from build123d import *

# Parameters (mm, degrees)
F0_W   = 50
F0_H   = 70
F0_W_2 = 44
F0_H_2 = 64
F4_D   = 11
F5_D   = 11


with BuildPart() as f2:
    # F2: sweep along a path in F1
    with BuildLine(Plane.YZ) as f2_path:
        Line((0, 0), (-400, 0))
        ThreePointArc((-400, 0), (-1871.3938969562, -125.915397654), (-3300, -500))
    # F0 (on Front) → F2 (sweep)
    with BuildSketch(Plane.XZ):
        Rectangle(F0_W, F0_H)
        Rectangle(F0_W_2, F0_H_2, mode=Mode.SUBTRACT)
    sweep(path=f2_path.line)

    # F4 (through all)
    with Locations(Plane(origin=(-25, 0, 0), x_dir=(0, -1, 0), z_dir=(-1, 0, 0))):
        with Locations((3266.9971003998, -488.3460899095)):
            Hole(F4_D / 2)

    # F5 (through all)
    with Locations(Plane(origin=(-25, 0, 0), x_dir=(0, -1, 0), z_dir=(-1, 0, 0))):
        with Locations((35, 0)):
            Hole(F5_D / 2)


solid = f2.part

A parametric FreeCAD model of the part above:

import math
import FreeCAD as App
import Part
import Sketcher
from FreeCAD import Vector
Q = App.Units.Quantity

doc = App.newDocument("Part")
body = doc.addObject("PartDesign::Body", "Body")

# Sketch on XZ plane
sketch1 = body.newObject("Sketcher::SketchObject", "Sketch")
sketch1.AttachmentSupport = (doc.getObject("XZ_Plane"), [""])
sketch1.MapMode = "FlatFace"
sketch1.addGeometry([
    Part.LineSegment(Vector(-25, 35, 0), Vector(-25, -35, 0)),  # 0
    Part.LineSegment(Vector(-25, -35, 0), Vector(25, -35, 0)),  # 1
    Part.LineSegment(Vector(25, -35, 0), Vector(25, 35, 0)),  # 2
    Part.LineSegment(Vector(25, 35, 0), Vector(-25, 35, 0)),  # 3
    Part.LineSegment(Vector(22, -32, 0), Vector(-22, -32, 0)),  # 4
    Part.LineSegment(Vector(-22, -32, 0), Vector(-22, 32, 0)),  # 5
    Part.LineSegment(Vector(-22, 32, 0), Vector(22, 32, 0)),  # 6
    Part.LineSegment(Vector(22, 32, 0), Vector(22, -32, 0)),  # 7
], False)
sketch1.addConstraint([
    Sketcher.Constraint("Coincident", 0, 2, 1, 1),
    Sketcher.Constraint("Coincident", 1, 2, 2, 1),
    Sketcher.Constraint("Coincident", 2, 2, 3, 1),
    Sketcher.Constraint("Coincident", 3, 2, 0, 1),
    Sketcher.Constraint("Coincident", 4, 2, 5, 1),
    Sketcher.Constraint("Coincident", 5, 2, 6, 1),
    Sketcher.Constraint("Coincident", 6, 2, 7, 1),
    Sketcher.Constraint("Coincident", 7, 2, 4, 1),
    Sketcher.Constraint("Vertical", 0),
    Sketcher.Constraint("Horizontal", 1),
    Sketcher.Constraint("Vertical", 2),
    Sketcher.Constraint("Horizontal", 3),
    Sketcher.Constraint("Horizontal", 4),
    Sketcher.Constraint("Vertical", 5),
    Sketcher.Constraint("Horizontal", 6),
    Sketcher.Constraint("Vertical", 7),
    Sketcher.Constraint("Symmetric", 0, 2, 2, 2, -1, 1),
    Sketcher.Constraint("Symmetric", 4, 2, 6, 2, -1, 1),
    Sketcher.Constraint("DistanceX", 1, 1, 1, 2, Q("50 mm")),
    Sketcher.Constraint("DistanceX", 4, 2, 4, 1, Q("44 mm")),
    Sketcher.Constraint("DistanceY", 0, 2, 0, 1, Q("70 mm")),
    Sketcher.Constraint("DistanceY", 5, 1, 5, 2, Q("64 mm")),
])

# Sketch on YZ plane
sketch2 = body.newObject("Sketcher::SketchObject", "Sketch001")
sketch2.AttachmentSupport = (doc.getObject("YZ_Plane"), [""])
sketch2.MapMode = "FlatFace"
sketch2.addGeometry([
    Part.LineSegment(Vector(0, 0, 0), Vector(-400, 0, 0)),
    Part.ArcOfCircle(Part.Circle(Vector(-400, -8660, 0), Vector(0, 0, 1), 8660), math.radians(90), math.radians(109.564814)),
], False)
sketch2.addConstraint([
    Sketcher.Constraint("Tangent", 0, 2, 1, 1),
    Sketcher.Constraint("Horizontal", 0),
    Sketcher.Constraint("Coincident", 0, 1, -1, 1),
    Sketcher.Constraint("Radius", 1, Q("8660 mm")),
    Sketcher.Constraint("DistanceX", 0, 2, 0, 1, Q("400 mm")),
    Sketcher.Constraint("DistanceX", 1, 2, -1, 1, Q("3300 mm")),
])
doc.recompute()

additivepipe = body.newObject("PartDesign::AdditivePipe", "AdditivePipe")
additivepipe.Profile = sketch1
additivepipe.Spine = (sketch2, ["Edge1", "Edge2"])

# Sketch on YZ plane
sketch3 = body.newObject("Sketcher::SketchObject", "Sketch002")
sketch3.AttachmentSupport = (doc.getObject("YZ_Plane"), [""])
sketch3.MapMode = "FlatFace"
sketch3.AttachmentOffset = App.Placement(Vector(0, 0, -25), App.Rotation())
sketch3.addGeometry(Part.Circle(Vector(-3266.9971, -488.34609, 0), Vector(0, 0, 1), 5.5), False)
sketch3.addConstraint([
    Sketcher.Constraint("Diameter", 0, Q("11 mm")),
    Sketcher.Constraint("DistanceX", 0, 3, -1, 1, Q("3266.9971 mm")),
    Sketcher.Constraint("DistanceY", 0, 3, -1, 1, Q("488.34609 mm")),
])
doc.recompute()
hole = body.newObject("PartDesign::Hole", "Hole")
hole.Profile = sketch3
hole.ThreadType = "None"
hole.Diameter = 11
hole.DepthType = "ThroughAll"
hole.Reversed = True

# Sketch on YZ plane
sketch4 = body.newObject("Sketcher::SketchObject", "Sketch003")
sketch4.AttachmentSupport = (doc.getObject("YZ_Plane"), [""])
sketch4.MapMode = "FlatFace"
sketch4.AttachmentOffset = App.Placement(Vector(0, 0, -25), App.Rotation())
sketch4.addGeometry(Part.Circle(Vector(-35, 0, 0), Vector(0, 0, 1), 5.5), False)
sketch4.addConstraint([
    Sketcher.Constraint("PointOnObject", 0, 3, -1),
    Sketcher.Constraint("Diameter", 0, Q("11 mm")),
    Sketcher.Constraint("DistanceX", 0, 3, -1, 1, Q("35 mm")),
])
doc.recompute()
hole2 = body.newObject("PartDesign::Hole", "Hole001")
hole2.Profile = sketch4
hole2.ThreadType = "None"
hole2.Diameter = 11
hole2.DepthType = "ThroughAll"
hole2.Reversed = True

doc.recompute()
